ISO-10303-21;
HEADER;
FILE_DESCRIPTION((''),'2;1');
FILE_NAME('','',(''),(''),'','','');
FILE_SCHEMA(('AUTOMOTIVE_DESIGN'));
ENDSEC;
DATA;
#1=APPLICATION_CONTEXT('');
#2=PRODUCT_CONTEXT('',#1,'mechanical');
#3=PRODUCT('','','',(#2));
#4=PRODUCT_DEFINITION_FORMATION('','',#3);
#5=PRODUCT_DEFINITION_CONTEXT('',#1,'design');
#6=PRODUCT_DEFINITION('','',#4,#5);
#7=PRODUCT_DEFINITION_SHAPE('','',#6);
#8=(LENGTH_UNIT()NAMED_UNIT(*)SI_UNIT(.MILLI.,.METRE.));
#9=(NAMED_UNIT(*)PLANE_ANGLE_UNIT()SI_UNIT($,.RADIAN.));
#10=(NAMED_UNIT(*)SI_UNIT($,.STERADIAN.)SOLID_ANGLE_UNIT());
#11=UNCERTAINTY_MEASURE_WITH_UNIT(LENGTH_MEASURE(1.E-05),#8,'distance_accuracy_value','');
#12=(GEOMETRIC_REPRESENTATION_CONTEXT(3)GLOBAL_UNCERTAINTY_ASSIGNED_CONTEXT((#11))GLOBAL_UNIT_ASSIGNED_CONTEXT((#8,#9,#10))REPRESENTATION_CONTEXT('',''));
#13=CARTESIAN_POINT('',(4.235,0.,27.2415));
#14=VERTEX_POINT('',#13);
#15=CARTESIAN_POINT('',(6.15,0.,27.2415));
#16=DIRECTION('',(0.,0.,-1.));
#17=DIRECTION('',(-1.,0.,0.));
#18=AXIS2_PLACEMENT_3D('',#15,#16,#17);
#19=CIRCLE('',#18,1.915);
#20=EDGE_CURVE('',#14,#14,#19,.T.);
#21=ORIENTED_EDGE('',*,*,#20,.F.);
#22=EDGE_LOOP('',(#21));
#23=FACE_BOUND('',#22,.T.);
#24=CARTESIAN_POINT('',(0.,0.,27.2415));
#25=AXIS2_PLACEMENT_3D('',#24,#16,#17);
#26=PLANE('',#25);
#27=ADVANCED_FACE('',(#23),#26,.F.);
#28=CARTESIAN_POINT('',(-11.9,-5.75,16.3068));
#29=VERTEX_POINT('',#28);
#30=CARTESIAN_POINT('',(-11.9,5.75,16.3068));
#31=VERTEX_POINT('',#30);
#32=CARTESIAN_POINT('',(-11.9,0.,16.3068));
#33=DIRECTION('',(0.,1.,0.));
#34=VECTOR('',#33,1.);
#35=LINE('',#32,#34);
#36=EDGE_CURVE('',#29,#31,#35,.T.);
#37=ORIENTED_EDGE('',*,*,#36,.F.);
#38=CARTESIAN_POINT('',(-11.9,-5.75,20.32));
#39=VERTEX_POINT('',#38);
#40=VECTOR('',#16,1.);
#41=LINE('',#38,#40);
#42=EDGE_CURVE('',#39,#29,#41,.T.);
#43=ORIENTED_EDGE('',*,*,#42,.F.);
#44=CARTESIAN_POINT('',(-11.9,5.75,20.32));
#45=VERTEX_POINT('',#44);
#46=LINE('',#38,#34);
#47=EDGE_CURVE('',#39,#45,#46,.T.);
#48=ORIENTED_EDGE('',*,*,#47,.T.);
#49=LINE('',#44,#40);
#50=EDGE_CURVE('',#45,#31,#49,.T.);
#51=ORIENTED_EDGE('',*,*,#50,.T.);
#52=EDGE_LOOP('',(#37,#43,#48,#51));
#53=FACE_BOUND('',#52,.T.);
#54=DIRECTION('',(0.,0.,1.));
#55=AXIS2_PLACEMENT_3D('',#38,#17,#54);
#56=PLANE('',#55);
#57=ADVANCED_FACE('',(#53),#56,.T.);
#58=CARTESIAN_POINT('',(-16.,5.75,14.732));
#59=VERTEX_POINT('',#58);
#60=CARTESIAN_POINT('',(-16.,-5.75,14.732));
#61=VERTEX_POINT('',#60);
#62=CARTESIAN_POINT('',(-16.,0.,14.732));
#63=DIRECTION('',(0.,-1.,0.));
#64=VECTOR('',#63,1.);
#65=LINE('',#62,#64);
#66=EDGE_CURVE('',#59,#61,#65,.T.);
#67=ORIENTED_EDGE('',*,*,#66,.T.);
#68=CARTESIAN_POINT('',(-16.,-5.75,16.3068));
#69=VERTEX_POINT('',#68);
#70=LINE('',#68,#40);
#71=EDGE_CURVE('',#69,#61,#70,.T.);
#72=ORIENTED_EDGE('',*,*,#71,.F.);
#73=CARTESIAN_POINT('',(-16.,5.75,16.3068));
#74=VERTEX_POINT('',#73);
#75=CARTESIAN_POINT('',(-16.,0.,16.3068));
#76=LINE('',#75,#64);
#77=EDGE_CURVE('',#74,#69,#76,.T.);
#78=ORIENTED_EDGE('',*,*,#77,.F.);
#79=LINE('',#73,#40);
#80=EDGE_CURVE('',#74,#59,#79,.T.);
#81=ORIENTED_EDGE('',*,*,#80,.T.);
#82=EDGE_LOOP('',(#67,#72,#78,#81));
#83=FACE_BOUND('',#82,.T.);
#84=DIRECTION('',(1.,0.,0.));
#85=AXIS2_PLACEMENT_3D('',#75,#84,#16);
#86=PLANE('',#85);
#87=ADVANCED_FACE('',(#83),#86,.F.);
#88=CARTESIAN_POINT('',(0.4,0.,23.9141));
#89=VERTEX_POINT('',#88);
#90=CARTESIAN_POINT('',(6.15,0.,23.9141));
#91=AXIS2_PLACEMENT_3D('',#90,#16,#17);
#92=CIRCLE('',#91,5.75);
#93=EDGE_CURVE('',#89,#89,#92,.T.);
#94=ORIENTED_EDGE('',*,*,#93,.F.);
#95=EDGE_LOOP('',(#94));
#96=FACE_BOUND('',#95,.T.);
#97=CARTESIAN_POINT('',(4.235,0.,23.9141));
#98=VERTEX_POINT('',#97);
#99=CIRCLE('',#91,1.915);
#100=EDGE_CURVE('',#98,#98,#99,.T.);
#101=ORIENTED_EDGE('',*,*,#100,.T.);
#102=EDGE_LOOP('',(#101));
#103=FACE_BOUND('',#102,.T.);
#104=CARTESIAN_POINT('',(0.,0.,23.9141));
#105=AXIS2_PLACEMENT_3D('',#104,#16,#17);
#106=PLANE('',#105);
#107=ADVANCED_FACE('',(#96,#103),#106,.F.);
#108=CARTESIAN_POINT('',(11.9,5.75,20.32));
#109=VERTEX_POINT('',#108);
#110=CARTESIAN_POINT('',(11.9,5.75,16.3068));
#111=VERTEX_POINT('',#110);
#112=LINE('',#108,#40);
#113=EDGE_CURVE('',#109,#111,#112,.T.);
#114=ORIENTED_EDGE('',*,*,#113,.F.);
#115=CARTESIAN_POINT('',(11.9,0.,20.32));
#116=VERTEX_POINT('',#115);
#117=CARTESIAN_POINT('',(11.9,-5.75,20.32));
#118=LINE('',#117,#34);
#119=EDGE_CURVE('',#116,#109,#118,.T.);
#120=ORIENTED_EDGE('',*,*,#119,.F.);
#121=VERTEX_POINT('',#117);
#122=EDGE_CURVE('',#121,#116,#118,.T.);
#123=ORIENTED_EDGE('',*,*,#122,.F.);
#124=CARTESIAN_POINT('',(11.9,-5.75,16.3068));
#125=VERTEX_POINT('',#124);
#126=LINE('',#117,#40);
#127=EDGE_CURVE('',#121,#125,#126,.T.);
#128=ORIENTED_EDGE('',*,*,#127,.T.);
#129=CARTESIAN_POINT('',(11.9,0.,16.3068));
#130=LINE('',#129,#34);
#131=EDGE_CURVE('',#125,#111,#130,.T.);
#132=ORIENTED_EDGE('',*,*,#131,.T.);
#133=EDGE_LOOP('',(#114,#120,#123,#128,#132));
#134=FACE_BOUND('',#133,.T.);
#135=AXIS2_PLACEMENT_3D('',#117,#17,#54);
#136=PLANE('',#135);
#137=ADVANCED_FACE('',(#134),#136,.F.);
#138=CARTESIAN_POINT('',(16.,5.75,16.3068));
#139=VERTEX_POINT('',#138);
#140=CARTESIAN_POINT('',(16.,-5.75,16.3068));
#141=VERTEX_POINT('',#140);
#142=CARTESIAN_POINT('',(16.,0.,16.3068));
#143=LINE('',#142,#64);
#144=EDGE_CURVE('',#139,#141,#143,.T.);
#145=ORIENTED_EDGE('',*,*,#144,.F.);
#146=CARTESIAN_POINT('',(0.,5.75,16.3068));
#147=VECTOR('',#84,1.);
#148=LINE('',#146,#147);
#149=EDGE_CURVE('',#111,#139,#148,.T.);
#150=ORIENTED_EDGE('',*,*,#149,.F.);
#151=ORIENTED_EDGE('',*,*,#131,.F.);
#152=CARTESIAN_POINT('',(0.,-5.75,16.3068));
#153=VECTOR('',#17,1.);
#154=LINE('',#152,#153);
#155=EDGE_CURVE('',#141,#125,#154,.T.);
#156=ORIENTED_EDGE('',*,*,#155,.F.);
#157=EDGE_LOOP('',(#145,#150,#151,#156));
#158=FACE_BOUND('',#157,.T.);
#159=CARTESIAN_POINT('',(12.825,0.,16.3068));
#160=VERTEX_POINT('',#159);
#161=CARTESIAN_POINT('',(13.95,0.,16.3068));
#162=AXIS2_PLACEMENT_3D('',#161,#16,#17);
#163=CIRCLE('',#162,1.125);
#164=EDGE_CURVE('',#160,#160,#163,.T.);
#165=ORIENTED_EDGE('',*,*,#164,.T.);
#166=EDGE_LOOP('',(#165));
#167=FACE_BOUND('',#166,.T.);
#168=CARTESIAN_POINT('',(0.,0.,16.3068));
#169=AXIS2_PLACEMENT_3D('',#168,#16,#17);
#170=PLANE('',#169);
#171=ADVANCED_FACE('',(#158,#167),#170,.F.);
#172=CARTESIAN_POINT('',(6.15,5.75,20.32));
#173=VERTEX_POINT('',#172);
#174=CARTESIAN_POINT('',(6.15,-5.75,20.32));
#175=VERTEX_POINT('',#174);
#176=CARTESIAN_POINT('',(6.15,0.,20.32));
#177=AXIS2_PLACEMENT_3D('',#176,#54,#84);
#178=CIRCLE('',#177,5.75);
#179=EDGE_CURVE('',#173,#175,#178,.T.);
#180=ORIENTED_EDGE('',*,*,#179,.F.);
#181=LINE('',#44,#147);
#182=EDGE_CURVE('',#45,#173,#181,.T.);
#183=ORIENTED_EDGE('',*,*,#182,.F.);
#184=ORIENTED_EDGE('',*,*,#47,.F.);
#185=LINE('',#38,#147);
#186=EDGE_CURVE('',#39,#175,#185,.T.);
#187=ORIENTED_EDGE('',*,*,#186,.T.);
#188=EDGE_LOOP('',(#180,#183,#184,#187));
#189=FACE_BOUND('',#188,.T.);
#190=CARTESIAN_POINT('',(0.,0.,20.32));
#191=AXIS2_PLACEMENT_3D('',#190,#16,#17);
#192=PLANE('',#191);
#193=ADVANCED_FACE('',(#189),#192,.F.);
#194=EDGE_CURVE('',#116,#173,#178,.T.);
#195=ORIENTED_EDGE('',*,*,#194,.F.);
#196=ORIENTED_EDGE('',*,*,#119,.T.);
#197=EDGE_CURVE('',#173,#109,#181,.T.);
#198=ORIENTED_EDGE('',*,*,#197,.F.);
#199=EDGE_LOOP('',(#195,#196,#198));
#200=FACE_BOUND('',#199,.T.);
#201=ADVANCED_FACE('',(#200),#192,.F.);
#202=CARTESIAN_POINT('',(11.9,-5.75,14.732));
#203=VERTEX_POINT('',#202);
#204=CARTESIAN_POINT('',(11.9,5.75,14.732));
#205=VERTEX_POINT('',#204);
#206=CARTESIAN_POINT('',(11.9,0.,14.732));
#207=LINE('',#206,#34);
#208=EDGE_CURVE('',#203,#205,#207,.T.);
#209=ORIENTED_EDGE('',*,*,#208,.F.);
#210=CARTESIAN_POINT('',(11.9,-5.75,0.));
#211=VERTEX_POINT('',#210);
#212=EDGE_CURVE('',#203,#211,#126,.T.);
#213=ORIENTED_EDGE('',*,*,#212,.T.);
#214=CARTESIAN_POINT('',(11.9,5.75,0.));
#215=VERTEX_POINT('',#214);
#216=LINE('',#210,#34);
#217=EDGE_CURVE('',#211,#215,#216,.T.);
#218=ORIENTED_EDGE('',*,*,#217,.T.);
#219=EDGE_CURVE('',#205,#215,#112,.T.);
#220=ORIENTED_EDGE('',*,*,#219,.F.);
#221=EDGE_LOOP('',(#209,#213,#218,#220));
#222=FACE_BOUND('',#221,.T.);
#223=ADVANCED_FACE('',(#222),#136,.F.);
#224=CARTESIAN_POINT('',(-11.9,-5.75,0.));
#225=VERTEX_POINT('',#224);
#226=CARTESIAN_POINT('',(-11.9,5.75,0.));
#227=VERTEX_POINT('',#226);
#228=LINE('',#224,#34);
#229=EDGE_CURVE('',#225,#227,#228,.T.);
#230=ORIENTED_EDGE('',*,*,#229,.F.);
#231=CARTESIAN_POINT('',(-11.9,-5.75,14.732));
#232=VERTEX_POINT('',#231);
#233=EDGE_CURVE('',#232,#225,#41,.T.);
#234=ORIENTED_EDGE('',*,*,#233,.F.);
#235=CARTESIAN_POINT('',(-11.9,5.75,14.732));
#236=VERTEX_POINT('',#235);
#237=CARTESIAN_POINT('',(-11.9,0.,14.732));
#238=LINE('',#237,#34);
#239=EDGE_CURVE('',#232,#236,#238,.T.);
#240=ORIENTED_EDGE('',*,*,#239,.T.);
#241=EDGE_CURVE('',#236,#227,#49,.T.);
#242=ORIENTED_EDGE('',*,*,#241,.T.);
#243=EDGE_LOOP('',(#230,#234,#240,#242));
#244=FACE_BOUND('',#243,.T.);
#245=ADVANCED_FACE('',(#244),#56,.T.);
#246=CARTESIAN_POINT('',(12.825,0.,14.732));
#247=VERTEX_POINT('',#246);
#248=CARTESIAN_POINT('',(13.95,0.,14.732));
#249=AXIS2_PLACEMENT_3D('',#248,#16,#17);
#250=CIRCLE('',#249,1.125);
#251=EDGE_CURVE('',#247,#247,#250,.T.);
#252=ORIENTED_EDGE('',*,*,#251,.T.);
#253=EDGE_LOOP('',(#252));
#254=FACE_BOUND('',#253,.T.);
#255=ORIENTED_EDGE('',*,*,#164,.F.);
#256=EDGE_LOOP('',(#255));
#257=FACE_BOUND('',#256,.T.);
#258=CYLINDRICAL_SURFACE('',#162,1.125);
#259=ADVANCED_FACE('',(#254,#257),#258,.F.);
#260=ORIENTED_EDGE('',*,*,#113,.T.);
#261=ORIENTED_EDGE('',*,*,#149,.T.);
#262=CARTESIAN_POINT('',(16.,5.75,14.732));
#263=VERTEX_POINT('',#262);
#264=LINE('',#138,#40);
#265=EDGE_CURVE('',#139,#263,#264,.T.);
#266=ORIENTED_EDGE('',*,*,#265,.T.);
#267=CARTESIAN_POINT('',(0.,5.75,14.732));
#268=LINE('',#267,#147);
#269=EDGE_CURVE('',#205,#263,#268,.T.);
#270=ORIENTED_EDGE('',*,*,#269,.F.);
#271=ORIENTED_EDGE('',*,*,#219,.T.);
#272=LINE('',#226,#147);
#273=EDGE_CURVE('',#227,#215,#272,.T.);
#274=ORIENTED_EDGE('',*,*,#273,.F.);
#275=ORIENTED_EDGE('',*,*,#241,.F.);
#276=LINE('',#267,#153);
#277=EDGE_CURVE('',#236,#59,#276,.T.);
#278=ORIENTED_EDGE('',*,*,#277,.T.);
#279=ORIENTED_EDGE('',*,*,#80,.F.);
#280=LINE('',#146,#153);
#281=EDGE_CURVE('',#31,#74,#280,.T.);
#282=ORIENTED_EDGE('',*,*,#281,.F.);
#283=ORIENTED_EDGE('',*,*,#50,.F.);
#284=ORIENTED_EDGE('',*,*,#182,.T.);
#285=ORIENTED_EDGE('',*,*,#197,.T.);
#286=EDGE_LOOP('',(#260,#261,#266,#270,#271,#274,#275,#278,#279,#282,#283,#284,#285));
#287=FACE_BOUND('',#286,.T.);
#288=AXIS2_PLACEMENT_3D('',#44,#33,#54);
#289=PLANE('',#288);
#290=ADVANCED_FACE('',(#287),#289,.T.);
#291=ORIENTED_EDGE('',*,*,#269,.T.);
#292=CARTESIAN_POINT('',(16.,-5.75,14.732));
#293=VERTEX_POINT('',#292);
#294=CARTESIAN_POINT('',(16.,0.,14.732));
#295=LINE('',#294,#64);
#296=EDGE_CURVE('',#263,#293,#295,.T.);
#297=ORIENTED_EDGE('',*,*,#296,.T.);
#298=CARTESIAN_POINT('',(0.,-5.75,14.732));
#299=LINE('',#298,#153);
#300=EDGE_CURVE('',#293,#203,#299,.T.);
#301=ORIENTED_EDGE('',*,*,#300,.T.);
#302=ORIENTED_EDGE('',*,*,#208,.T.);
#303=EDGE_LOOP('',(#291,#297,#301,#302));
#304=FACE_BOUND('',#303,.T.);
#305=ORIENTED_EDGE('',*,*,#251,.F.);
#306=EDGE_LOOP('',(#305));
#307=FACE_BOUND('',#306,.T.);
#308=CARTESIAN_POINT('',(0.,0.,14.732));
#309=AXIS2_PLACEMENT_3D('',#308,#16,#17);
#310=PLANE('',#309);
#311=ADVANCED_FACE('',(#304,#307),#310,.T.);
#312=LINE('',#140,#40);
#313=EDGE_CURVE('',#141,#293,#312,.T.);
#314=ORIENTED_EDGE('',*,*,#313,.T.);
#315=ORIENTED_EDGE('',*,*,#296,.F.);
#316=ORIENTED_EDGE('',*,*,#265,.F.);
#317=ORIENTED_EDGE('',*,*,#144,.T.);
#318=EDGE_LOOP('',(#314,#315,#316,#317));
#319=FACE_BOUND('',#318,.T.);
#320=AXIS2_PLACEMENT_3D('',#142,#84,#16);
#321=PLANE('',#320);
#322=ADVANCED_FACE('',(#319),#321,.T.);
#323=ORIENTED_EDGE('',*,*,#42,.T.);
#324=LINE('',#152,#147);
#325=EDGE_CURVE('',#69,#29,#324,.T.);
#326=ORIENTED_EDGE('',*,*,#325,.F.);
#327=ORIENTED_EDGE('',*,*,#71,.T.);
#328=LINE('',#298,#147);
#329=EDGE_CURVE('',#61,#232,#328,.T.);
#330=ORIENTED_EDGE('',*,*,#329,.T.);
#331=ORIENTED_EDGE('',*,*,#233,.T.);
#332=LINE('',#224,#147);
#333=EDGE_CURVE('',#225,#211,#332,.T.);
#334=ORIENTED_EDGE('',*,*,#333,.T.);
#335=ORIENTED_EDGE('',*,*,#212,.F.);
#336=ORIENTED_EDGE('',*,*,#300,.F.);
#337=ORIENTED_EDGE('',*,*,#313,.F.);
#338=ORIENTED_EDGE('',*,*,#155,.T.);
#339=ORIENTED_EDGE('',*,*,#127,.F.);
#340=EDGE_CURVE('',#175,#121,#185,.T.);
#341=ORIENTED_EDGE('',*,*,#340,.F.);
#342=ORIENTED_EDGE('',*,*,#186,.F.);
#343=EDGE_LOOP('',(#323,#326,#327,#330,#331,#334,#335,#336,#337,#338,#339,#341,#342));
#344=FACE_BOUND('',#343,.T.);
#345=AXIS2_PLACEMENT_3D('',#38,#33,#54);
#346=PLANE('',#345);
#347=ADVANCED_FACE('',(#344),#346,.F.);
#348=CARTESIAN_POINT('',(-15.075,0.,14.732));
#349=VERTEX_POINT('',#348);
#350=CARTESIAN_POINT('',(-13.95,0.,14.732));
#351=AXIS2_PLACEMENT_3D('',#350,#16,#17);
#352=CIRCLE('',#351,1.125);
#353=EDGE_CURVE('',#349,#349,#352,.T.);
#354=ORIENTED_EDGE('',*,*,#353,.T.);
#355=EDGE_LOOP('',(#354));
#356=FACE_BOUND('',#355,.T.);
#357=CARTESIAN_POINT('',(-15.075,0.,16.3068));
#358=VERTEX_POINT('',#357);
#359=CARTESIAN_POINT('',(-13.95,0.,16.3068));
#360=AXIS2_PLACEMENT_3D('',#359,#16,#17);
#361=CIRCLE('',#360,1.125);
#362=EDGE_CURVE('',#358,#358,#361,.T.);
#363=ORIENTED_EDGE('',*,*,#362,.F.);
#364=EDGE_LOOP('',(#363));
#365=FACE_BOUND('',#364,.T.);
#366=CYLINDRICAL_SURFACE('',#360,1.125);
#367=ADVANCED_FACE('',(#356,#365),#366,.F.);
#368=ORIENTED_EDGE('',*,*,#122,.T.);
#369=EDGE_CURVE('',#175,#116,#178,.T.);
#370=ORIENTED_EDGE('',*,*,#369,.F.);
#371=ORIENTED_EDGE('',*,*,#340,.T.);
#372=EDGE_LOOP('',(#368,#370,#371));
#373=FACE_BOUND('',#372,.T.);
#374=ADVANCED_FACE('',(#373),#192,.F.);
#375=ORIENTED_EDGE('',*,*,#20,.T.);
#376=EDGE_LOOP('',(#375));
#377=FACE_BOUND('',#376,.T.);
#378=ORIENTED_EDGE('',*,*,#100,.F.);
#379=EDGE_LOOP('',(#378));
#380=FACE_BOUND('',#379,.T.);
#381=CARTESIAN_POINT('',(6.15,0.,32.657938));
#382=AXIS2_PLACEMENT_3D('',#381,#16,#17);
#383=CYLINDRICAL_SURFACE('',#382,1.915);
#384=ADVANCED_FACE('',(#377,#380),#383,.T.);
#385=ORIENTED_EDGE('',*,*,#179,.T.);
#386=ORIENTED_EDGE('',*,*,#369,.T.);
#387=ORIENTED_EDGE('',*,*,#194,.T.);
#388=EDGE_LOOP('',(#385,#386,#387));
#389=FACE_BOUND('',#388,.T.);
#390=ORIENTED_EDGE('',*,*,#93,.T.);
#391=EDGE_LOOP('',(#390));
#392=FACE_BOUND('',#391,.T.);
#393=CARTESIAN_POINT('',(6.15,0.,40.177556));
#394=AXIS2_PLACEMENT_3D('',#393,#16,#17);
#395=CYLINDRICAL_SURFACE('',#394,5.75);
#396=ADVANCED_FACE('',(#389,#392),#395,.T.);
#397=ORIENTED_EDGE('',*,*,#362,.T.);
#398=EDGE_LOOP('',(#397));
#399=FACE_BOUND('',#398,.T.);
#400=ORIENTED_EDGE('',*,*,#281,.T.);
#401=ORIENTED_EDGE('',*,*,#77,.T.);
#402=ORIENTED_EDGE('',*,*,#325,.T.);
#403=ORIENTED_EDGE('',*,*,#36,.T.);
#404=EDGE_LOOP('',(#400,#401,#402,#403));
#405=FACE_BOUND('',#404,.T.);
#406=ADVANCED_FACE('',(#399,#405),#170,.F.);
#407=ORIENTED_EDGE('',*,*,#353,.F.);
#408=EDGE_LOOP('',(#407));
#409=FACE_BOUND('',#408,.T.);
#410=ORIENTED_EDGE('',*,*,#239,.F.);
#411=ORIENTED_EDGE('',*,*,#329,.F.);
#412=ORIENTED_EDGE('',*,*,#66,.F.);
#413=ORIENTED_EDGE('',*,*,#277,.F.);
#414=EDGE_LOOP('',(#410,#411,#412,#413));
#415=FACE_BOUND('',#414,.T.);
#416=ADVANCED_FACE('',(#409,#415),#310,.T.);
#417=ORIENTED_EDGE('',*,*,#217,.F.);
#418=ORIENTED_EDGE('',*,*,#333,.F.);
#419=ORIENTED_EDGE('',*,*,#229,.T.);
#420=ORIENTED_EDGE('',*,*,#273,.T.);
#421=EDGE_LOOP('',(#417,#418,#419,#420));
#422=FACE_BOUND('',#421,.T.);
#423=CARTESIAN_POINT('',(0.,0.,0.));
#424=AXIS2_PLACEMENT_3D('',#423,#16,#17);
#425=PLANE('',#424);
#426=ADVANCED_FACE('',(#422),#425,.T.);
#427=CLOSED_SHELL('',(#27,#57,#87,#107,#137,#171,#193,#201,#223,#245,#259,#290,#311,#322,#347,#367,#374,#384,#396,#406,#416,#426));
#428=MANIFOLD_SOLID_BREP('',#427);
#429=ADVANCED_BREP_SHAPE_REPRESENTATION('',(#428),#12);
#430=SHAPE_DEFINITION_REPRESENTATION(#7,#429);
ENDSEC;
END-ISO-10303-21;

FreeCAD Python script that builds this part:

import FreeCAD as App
import Part
import Sketcher
from FreeCAD import Vector
Q = App.Units.Quantity


def add_polygon(sketch, points):
    """Adds a closed chain of lines whose ends are joined by coincident constraints."""
    first, n = sketch.GeometryCount, len(points)
    for a, b in zip(points, points[1:] + points[:1]):
        sketch.addGeometry(Part.LineSegment(App.Vector(*a, 0), App.Vector(*b, 0)), False)
    for i in range(n):
        sketch.addConstraint(Sketcher.Constraint("Coincident", first + i, 2, first + (i + 1) % n, 1))

doc = App.newDocument("Part")
body = doc.addObject("PartDesign::Body", "Body")

sketch1 = body.newObject("Sketcher::SketchObject", "Sketch")
sketch1.AttachmentSupport = (doc.getObject("XY_Plane"), [""])
sketch1.MapMode = "FlatFace"
add_polygon(sketch1, [(-11.9, 5.75), (-11.9, -5.75), (11.9, -5.75), (11.9, 5.75)])
sketch1.addConstraint(Sketcher.Constraint("Vertical", 0))
sketch1.addConstraint(Sketcher.Constraint("Horizontal", 1))
sketch1.addConstraint(Sketcher.Constraint("Vertical", 2))
sketch1.addConstraint(Sketcher.Constraint("Horizontal", 3))
sketch1.addConstraint(Sketcher.Constraint("Symmetric", 0, 2, 2, 2, -1, 1))
sketch1.addConstraint(Sketcher.Constraint("DistanceX", 1, 1, 1, 2, Q("23.8 mm")))
sketch1.addConstraint(Sketcher.Constraint("DistanceY", 0, 2, 0, 1, Q("11.5 mm")))
pad1 = body.newObject("PartDesign::Pad", "Pad")
pad1.Profile = sketch1
pad1.Length = 20.32

sketch2 = body.newObject("Sketcher::SketchObject", "Sketch001")
sketch2.AttachmentSupport = (doc.getObject("XY_Plane"), [""])
sketch2.MapMode = "FlatFace"
sketch2.AttachmentOffset = App.Placement(Vector(0, 0, 14.732), App.Rotation())
add_polygon(sketch2, [(-11.9, 5.75), (-11.9, -5.75), (-16, -5.75), (-16, 5.75)])
sketch2.addGeometry(Part.Circle(Vector(-13.95, 0, 0), Vector(0, 0, 1), 1.125), False)
add_polygon(sketch2, [(16, 5.75), (16, -5.75), (11.9, -5.75), (11.9, 5.75)])
sketch2.addGeometry(Part.Circle(Vector(13.95, 0, 0), Vector(0, 0, 1), 1.125), False)
sketch2.addConstraint(Sketcher.Constraint("Vertical", 0))
sketch2.addConstraint(Sketcher.Constraint("Horizontal", 1))
sketch2.addConstraint(Sketcher.Constraint("Vertical", 2))
sketch2.addConstraint(Sketcher.Constraint("Horizontal", 3))
sketch2.addConstraint(Sketcher.Constraint("Vertical", 5))
sketch2.addConstraint(Sketcher.Constraint("Horizontal", 6))
sketch2.addConstraint(Sketcher.Constraint("Vertical", 7))
sketch2.addConstraint(Sketcher.Constraint("Horizontal", 8))
sketch2.addConstraint(Sketcher.Constraint("Equal", 4, 9))
sketch2.addConstraint(Sketcher.Constraint("Symmetric", 4, 3, 9, 3, -1, 1))
sketch2.addConstraint(Sketcher.Constraint("Symmetric", 2, 2, 5, 2, -1, 1))
sketch2.addConstraint(Sketcher.Constraint("Symmetric", 0, 2, 7, 2, -1, 1))
sketch2.addConstraint(Sketcher.Constraint("PointOnObject", 4, 3, -1))
sketch2.addConstraint(Sketcher.Constraint("Horizontal", 1, 2, 5, 2))
sketch2.addConstraint(Sketcher.Constraint("Diameter", 4, Q("2.25 mm")))
sketch2.addConstraint(Sketcher.Constraint("DistanceX", 1, 2, 1, 1, Q("4.1 mm")))
sketch2.addConstraint(Sketcher.Constraint("DistanceY", 0, 2, 0, 1, Q("11.5 mm")))
sketch2.addConstraint(Sketcher.Constraint("DistanceX", 1, 2, -1, 1, Q("16 mm")))
sketch2.addConstraint(Sketcher.Constraint("DistanceX", 4, 3, 9, 3, Q("27.9 mm")))
pad2 = body.newObject("PartDesign::Pad", "Pad001")
pad2.Profile = sketch2
pad2.Length = 1.5748

sketch3 = body.newObject("Sketcher::SketchObject", "Sketch002")
sketch3.AttachmentSupport = (doc.getObject("XY_Plane"), [""])
sketch3.MapMode = "FlatFace"
sketch3.AttachmentOffset = App.Placement(Vector(0, 0, 20.32), App.Rotation())
sketch3.addGeometry(Part.Circle(Vector(6.15, 0, 0), Vector(0, 0, 1), 1.915), False)
sketch3.addConstraint(Sketcher.Constraint("PointOnObject", 0, 3, -1))
sketch3.addConstraint(Sketcher.Constraint("Diameter", 0, Q("3.83 mm")))
sketch3.addConstraint(Sketcher.Constraint("DistanceX", -1, 1, 0, 3, Q("6.15 mm")))
pad3 = body.newObject("PartDesign::Pad", "Pad002")
pad3.Profile = sketch3
pad3.Length = 6.9215

sketch4 = body.newObject("Sketcher::SketchObject", "Sketch003")
sketch4.AttachmentSupport = (doc.getObject("XY_Plane"), [""])
sketch4.MapMode = "FlatFace"
sketch4.AttachmentOffset = App.Placement(Vector(0, 0, 20.32), App.Rotation())
sketch4.addGeometry(Part.Circle(Vector(6.15, 0, 0), Vector(0, 0, 1), 5.75), False)
sketch4.addConstraint(Sketcher.Constraint("PointOnObject", 0, 3, -1))
sketch4.addConstraint(Sketcher.Constraint("Diameter", 0, Q("11.5 mm")))
sketch4.addConstraint(Sketcher.Constraint("DistanceX", -1, 1, 0, 3, Q("6.15 mm")))
pad4 = body.newObject("PartDesign::Pad", "Pad003")
pad4.Profile = sketch4
pad4.Length = 3.5941

doc.recompute()
